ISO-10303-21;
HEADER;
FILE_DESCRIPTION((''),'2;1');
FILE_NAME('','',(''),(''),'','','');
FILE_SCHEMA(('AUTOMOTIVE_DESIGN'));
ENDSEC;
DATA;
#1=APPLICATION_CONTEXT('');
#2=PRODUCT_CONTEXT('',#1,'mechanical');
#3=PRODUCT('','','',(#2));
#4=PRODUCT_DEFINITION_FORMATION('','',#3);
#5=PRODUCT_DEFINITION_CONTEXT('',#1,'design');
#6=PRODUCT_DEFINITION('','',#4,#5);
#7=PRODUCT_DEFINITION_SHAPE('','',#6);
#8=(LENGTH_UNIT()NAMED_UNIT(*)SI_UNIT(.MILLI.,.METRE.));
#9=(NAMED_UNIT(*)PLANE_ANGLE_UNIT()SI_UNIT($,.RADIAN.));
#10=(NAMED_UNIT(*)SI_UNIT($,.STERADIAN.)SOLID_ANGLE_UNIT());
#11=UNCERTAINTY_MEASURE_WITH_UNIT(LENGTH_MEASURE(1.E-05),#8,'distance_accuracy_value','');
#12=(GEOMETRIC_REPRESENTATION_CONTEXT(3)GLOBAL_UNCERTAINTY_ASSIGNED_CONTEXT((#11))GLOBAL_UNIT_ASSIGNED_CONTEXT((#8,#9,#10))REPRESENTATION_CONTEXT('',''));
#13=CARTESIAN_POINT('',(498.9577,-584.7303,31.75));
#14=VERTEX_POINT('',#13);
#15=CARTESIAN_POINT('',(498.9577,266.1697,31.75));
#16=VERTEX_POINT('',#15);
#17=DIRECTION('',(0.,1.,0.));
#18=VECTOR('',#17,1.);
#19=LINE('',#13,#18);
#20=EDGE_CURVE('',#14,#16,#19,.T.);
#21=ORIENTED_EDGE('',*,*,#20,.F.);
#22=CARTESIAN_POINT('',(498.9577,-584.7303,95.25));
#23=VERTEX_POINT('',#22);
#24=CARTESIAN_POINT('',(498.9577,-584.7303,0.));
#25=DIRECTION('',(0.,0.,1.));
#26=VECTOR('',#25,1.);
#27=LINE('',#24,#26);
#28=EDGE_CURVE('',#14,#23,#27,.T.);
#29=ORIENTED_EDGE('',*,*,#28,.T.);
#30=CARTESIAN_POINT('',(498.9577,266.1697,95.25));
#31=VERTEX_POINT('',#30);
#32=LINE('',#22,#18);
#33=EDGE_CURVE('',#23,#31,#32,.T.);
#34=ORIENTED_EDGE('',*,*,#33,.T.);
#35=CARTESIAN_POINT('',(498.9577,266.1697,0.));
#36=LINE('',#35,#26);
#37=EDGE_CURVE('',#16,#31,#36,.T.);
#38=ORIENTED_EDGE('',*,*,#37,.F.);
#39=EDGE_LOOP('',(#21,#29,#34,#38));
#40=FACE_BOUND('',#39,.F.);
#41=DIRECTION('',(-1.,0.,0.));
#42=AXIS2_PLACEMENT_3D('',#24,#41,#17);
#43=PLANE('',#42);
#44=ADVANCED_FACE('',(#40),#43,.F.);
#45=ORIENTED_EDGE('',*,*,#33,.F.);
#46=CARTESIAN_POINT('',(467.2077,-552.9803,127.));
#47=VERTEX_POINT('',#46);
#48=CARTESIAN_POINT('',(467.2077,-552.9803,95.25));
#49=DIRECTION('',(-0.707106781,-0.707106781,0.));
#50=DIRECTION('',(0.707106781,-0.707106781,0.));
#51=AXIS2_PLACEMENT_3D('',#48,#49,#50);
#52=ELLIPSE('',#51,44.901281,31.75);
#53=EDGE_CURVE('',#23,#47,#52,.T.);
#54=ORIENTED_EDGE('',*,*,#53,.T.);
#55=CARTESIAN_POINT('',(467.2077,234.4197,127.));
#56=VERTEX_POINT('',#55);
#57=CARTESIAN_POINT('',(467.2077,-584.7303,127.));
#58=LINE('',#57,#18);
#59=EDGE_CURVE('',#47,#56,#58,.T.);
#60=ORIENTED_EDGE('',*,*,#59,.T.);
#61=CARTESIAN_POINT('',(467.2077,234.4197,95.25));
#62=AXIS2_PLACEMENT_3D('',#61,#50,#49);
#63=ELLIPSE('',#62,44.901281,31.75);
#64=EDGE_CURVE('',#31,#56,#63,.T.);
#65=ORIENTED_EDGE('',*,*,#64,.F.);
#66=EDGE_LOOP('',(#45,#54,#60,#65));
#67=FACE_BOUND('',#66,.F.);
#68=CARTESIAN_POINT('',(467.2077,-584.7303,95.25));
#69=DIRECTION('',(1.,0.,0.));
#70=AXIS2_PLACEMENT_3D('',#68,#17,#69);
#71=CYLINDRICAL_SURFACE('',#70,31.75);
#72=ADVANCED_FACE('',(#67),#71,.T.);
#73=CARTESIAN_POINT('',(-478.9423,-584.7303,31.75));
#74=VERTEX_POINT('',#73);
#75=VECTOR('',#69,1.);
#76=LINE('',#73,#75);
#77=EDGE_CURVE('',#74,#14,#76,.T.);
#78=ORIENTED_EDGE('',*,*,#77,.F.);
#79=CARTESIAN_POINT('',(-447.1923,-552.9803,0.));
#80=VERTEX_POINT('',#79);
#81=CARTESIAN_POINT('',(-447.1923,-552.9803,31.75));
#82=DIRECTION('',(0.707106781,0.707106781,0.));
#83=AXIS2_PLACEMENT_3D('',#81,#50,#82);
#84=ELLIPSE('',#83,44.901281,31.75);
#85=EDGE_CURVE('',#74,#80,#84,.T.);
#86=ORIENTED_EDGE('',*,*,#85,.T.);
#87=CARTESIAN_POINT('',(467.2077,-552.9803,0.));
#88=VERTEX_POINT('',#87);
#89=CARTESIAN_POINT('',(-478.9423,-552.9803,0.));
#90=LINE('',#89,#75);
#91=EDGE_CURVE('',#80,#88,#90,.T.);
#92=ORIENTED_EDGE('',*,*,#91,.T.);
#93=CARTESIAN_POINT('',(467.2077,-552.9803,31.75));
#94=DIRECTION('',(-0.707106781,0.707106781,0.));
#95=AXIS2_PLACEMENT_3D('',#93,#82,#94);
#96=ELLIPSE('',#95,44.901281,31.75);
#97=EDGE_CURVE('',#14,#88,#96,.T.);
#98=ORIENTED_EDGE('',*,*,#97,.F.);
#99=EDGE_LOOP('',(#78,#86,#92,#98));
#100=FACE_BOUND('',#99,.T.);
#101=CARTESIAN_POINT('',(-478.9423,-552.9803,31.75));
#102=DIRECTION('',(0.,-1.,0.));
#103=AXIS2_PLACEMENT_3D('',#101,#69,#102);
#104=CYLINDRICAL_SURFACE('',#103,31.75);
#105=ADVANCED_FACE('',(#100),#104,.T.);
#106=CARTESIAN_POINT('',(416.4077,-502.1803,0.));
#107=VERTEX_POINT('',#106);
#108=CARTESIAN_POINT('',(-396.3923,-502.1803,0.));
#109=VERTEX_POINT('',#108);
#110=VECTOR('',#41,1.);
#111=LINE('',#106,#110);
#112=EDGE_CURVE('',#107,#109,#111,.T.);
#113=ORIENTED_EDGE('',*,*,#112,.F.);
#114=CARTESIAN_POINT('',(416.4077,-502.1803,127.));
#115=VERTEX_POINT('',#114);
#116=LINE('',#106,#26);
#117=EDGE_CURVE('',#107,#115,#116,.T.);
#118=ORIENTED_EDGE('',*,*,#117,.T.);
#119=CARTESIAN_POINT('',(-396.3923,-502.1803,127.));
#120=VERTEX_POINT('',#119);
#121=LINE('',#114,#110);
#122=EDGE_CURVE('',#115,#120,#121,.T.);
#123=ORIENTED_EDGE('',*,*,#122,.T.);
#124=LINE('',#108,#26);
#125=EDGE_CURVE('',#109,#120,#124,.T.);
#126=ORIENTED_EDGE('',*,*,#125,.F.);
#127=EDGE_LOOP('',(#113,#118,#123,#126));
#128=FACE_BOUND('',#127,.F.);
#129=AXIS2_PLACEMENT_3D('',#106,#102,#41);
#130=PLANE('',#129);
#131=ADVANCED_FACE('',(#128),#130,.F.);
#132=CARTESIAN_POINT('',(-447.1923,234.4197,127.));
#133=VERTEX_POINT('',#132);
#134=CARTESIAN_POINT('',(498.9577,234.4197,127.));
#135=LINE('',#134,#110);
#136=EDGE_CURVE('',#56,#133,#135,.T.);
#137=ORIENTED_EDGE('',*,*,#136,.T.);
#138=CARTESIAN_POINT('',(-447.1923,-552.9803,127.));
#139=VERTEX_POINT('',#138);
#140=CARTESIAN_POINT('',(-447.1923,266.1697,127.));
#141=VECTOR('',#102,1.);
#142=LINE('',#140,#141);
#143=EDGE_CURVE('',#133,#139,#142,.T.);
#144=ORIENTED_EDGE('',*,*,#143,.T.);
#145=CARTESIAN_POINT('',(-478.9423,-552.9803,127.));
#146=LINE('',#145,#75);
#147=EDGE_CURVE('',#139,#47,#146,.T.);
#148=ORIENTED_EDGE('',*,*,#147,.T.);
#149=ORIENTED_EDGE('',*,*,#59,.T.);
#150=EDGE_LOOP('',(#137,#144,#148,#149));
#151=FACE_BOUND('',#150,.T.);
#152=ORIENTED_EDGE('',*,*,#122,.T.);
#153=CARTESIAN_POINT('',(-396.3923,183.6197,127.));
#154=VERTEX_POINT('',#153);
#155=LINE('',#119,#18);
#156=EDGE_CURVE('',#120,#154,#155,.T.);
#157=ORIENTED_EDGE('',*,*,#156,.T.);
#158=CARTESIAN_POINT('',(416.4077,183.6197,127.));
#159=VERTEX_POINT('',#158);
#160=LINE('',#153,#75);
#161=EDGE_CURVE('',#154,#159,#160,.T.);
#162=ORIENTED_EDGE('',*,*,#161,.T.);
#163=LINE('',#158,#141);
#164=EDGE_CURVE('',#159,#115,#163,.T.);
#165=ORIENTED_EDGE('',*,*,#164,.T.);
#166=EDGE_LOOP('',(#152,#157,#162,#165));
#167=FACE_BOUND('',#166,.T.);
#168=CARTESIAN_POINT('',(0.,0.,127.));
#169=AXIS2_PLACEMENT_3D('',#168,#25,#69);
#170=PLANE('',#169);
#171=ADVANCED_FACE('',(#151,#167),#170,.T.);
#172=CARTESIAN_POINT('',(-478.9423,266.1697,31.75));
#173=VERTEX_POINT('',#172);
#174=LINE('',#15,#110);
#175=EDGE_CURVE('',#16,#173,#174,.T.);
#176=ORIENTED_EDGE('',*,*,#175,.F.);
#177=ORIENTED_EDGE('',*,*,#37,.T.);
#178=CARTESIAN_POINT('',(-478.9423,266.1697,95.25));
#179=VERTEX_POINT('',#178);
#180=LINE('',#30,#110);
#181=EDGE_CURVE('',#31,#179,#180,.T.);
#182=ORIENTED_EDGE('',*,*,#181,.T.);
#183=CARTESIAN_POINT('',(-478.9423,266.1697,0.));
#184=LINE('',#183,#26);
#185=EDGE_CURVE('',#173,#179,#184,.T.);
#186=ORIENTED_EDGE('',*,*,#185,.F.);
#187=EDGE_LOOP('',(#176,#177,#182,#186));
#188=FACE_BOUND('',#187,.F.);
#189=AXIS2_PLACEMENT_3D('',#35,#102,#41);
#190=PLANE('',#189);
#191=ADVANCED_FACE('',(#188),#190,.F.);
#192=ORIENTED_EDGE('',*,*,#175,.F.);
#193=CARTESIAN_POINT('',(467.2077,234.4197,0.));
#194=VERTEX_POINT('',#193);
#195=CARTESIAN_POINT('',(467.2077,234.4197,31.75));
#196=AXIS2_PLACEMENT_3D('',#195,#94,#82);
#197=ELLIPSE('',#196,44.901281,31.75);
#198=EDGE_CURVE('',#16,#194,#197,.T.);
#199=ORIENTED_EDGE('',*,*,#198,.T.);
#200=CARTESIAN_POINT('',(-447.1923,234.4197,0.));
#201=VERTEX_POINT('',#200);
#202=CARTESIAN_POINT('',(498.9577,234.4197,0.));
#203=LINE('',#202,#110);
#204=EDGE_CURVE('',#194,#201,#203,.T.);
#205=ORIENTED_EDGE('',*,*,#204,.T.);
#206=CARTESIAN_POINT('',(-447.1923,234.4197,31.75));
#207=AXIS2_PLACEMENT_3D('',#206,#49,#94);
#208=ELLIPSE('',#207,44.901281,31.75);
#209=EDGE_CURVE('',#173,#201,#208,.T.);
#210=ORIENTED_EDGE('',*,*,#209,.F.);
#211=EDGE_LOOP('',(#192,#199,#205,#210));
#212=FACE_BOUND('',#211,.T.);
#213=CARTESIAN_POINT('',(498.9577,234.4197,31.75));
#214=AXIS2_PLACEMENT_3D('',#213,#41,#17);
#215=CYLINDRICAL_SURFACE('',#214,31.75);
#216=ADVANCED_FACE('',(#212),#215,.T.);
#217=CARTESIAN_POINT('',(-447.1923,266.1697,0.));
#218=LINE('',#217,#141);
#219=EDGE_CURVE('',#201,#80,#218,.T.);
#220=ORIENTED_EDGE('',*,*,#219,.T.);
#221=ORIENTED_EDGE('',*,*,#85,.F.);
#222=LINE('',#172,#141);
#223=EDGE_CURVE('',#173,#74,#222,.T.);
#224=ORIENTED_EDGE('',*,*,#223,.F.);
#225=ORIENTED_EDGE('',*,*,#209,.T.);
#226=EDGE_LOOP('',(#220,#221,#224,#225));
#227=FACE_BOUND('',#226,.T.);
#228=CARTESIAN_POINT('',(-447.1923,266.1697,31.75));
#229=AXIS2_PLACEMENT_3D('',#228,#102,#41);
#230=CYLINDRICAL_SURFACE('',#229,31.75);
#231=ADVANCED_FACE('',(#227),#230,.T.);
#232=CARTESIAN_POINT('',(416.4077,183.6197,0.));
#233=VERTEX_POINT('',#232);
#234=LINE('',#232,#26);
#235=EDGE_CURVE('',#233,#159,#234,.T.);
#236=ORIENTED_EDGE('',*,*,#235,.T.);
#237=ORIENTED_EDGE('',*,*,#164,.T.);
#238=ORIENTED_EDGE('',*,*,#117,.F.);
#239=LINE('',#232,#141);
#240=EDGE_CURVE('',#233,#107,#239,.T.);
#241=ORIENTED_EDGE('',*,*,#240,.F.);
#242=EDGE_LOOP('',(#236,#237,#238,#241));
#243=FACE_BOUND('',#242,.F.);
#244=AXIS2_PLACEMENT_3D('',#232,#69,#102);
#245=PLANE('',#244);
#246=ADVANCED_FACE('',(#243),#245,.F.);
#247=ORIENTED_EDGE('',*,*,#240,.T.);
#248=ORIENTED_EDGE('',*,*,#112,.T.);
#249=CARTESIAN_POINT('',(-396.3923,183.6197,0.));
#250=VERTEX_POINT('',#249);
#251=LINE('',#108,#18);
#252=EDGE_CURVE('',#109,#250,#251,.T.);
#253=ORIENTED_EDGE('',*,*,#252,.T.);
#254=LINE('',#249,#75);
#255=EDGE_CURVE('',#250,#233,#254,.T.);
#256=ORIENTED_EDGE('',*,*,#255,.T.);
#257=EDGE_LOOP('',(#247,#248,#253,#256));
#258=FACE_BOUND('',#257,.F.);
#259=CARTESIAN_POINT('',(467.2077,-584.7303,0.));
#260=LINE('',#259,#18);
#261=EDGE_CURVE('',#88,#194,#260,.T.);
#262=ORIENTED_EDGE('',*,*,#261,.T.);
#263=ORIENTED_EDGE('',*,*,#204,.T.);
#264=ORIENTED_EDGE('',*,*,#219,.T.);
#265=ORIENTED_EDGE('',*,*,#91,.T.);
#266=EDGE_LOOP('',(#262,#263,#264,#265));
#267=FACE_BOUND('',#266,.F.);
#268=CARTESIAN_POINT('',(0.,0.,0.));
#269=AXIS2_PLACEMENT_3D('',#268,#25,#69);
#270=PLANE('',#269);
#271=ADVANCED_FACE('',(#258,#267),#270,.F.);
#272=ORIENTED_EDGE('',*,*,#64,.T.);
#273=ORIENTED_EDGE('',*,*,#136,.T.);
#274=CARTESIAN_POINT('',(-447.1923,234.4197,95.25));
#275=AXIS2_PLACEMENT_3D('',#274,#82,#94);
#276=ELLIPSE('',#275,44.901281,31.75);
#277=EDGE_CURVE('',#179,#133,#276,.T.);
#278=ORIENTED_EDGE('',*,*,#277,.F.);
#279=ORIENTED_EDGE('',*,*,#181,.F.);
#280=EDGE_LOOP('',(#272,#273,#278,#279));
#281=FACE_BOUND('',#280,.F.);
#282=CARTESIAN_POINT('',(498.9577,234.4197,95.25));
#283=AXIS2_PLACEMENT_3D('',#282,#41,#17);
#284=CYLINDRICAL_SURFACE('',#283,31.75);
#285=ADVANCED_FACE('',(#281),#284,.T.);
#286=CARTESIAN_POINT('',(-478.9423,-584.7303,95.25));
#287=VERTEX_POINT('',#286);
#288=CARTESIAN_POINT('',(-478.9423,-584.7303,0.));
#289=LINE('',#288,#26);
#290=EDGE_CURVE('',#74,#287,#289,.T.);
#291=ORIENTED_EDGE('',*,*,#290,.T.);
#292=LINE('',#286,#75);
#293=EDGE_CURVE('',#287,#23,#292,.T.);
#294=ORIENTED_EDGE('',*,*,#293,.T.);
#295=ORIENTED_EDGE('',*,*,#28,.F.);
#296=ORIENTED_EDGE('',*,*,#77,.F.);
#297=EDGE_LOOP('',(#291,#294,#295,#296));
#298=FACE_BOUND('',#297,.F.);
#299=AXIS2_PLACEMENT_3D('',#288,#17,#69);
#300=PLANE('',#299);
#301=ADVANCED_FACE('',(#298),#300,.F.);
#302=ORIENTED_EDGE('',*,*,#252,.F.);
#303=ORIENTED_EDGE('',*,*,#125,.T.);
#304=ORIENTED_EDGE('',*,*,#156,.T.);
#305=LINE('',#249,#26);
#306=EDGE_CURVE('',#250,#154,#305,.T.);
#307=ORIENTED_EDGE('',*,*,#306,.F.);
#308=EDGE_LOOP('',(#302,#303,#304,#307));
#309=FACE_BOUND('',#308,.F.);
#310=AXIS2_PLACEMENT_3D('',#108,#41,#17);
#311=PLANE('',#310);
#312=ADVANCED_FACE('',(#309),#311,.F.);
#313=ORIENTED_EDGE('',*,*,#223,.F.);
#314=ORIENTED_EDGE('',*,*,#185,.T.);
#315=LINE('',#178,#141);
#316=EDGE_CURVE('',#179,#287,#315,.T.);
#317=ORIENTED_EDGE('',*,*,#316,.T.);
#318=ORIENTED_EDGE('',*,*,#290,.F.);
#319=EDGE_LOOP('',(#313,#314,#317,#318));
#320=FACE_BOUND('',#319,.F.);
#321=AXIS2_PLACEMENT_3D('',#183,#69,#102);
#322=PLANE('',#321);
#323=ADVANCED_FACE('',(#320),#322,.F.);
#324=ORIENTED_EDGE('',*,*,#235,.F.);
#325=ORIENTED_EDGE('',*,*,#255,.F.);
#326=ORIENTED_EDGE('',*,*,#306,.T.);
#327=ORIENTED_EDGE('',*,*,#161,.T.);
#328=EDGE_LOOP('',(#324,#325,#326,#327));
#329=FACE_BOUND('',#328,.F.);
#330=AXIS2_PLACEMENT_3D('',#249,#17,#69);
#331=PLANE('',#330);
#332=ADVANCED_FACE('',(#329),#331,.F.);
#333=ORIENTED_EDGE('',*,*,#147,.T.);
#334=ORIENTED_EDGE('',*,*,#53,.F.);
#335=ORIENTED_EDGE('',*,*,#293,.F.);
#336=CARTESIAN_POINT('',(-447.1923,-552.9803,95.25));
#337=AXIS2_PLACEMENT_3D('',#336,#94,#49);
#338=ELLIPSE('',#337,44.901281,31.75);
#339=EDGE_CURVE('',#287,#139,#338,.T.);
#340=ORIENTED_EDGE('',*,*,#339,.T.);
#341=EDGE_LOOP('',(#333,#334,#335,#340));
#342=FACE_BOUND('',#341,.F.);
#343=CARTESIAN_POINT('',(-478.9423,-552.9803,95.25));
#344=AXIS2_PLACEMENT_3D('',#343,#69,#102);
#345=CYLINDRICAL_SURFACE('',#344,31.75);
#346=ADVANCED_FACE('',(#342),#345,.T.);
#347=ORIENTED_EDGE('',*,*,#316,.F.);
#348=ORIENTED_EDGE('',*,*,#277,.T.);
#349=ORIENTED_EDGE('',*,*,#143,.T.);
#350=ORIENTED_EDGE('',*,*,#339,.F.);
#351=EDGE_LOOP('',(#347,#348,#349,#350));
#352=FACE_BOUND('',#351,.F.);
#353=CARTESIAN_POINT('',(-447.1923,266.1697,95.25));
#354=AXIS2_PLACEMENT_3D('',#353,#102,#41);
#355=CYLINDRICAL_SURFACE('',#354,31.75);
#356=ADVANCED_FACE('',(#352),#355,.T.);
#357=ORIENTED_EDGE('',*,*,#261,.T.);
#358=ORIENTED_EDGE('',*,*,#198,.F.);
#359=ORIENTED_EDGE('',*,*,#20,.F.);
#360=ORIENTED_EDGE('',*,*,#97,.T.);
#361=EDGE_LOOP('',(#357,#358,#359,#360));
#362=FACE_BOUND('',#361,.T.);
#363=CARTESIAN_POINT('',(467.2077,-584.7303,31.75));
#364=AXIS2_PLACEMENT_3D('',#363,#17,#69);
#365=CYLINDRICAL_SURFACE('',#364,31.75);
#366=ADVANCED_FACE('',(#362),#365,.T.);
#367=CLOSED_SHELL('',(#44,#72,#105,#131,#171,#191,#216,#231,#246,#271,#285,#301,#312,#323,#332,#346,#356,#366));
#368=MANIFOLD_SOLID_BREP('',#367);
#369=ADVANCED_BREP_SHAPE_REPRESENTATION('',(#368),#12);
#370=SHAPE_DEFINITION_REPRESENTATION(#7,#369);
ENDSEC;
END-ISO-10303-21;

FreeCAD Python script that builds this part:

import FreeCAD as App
import Part
import Sketcher
from FreeCAD import Vector
Q = App.Units.Quantity


def edges_at(feature, points):
    """Names of the edges that pass closest to the given points."""
    edges = feature.Shape.Edges
    near = lambda p: min(range(len(edges)), key=lambda i: edges[i].distToShape(Part.Vertex(*p))[0])
    return sorted({f"Edge{near(p) + 1}" for p in points})


def add_polygon(sketch, points):
    """Adds a closed chain of lines whose ends are joined by coincident constraints."""
    first, n = sketch.GeometryCount, len(points)
    for a, b in zip(points, points[1:] + points[:1]):
        sketch.addGeometry(Part.LineSegment(App.Vector(*a, 0), App.Vector(*b, 0)), False)
    for i in range(n):
        sketch.addConstraint(Sketcher.Constraint("Coincident", first + i, 2, first + (i + 1) % n, 1))

doc = App.newDocument("Part")
body = doc.addObject("PartDesign::Body", "Body")

sketch1 = body.newObject("Sketcher::SketchObject", "Sketch")
sketch1.AttachmentSupport = (doc.getObject("XY_Plane"), [""])
sketch1.MapMode = "FlatFace"
add_polygon(sketch1, [(499, -585), (499, 266), (-479, 266), (-479, -585)])
add_polygon(sketch1, [(-396, -502), (-396, 184), (416, 184), (416, -502)])
sketch1.addConstraint([
    Sketcher.Constraint("Vertical", 0),
    Sketcher.Constraint("Horizontal", 1),
    Sketcher.Constraint("Vertical", 2),
    Sketcher.Constraint("Horizontal", 3),
    Sketcher.Constraint("Vertical", 4),
    Sketcher.Constraint("Horizontal", 5),
    Sketcher.Constraint("Vertical", 6),
    Sketcher.Constraint("Horizontal", 7),
    Sketcher.Constraint("DistanceX", 5, 1, 5, 2, Q("32 in")),
    Sketcher.Constraint("DistanceY", 4, 1, 4, 2, Q("27 in")),
    Sketcher.Constraint("DistanceX", 1, 2, 4, 2, Q("3.25 in")),
    Sketcher.Constraint("DistanceY", 4, 2, 1, 2, Q("3.25 in")),
    Sketcher.Constraint("DistanceX", 5, 2, 0, 2, Q("3.25 in")),
    Sketcher.Constraint("DistanceY", 3, 2, 6, 2, Q("3.25 in")),
    Sketcher.Constraint("DistanceX", -1, 1, 0, 2, Q("19.644 in")),
    Sketcher.Constraint("DistanceY", -1, 1, 0, 2, 266.1697),
])
pad1 = body.newObject("PartDesign::Pad", "Pad")
pad1.Profile = sketch1
pad1.Length = Q("5 in")
doc.recompute()

fillet = body.newObject("PartDesign::Fillet", "Fillet")
fillet.Base = (pad1, edges_at(pad1, [
    (10.008, 266.17, 127),
    (-478.942, -159.28, 127),
    (10.008, -584.73, 127),
    (498.958, -159.28, 127),
    (498.958, -159.28, 0),
    (10.008, 266.17, 0),
    (10.008, -584.73, 0),
    (-478.942, -159.28, 0),
]))
fillet.Radius = Q("1.25 in")

doc.recompute()
